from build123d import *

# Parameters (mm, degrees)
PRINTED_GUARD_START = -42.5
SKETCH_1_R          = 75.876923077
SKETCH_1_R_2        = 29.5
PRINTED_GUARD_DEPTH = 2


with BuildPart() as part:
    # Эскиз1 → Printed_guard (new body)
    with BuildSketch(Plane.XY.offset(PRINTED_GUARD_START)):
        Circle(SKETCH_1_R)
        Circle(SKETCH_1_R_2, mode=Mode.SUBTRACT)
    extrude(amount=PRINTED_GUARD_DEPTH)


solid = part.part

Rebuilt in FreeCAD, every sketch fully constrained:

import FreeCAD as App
import Part
import Sketcher
from FreeCAD import Vector

doc = App.newDocument("Part")
body = doc.addObject("PartDesign::Body", "Body")

# Sketch on XY plane
sketch1 = doc.addObject("Sketcher::SketchObject", "Sketch")
body.addObject(sketch1)
sketch1.AttachmentSupport = (doc.XY_Plane, [""])
sketch1.MapMode = "FlatFace"
sketch1.AttachmentOffset = App.Placement(Vector(0, 0, -42.5), App.Rotation())
sketch1.addGeometry([
    Part.Circle(Vector(0, 0, 0), Vector(0, 0, 1), 76),
    Part.Circle(Vector(0, 0, 0), Vector(0, 0, 1), 30),
], False)
sketch1.addConstraint([
    Sketcher.Constraint("Coincident", 0, 3, -1, 1),
    Sketcher.Constraint("Coincident", 1, 3, -1, 1),
    Sketcher.Constraint("Diameter", 1, 59.0),
    Sketcher.Constraint("Diameter", 0, 151.753846),
])
pad1 = doc.addObject("PartDesign::Pad", "Pad")
body.addObject(pad1)
pad1.Profile = sketch1
pad1.Length = 2

doc.recompute()
